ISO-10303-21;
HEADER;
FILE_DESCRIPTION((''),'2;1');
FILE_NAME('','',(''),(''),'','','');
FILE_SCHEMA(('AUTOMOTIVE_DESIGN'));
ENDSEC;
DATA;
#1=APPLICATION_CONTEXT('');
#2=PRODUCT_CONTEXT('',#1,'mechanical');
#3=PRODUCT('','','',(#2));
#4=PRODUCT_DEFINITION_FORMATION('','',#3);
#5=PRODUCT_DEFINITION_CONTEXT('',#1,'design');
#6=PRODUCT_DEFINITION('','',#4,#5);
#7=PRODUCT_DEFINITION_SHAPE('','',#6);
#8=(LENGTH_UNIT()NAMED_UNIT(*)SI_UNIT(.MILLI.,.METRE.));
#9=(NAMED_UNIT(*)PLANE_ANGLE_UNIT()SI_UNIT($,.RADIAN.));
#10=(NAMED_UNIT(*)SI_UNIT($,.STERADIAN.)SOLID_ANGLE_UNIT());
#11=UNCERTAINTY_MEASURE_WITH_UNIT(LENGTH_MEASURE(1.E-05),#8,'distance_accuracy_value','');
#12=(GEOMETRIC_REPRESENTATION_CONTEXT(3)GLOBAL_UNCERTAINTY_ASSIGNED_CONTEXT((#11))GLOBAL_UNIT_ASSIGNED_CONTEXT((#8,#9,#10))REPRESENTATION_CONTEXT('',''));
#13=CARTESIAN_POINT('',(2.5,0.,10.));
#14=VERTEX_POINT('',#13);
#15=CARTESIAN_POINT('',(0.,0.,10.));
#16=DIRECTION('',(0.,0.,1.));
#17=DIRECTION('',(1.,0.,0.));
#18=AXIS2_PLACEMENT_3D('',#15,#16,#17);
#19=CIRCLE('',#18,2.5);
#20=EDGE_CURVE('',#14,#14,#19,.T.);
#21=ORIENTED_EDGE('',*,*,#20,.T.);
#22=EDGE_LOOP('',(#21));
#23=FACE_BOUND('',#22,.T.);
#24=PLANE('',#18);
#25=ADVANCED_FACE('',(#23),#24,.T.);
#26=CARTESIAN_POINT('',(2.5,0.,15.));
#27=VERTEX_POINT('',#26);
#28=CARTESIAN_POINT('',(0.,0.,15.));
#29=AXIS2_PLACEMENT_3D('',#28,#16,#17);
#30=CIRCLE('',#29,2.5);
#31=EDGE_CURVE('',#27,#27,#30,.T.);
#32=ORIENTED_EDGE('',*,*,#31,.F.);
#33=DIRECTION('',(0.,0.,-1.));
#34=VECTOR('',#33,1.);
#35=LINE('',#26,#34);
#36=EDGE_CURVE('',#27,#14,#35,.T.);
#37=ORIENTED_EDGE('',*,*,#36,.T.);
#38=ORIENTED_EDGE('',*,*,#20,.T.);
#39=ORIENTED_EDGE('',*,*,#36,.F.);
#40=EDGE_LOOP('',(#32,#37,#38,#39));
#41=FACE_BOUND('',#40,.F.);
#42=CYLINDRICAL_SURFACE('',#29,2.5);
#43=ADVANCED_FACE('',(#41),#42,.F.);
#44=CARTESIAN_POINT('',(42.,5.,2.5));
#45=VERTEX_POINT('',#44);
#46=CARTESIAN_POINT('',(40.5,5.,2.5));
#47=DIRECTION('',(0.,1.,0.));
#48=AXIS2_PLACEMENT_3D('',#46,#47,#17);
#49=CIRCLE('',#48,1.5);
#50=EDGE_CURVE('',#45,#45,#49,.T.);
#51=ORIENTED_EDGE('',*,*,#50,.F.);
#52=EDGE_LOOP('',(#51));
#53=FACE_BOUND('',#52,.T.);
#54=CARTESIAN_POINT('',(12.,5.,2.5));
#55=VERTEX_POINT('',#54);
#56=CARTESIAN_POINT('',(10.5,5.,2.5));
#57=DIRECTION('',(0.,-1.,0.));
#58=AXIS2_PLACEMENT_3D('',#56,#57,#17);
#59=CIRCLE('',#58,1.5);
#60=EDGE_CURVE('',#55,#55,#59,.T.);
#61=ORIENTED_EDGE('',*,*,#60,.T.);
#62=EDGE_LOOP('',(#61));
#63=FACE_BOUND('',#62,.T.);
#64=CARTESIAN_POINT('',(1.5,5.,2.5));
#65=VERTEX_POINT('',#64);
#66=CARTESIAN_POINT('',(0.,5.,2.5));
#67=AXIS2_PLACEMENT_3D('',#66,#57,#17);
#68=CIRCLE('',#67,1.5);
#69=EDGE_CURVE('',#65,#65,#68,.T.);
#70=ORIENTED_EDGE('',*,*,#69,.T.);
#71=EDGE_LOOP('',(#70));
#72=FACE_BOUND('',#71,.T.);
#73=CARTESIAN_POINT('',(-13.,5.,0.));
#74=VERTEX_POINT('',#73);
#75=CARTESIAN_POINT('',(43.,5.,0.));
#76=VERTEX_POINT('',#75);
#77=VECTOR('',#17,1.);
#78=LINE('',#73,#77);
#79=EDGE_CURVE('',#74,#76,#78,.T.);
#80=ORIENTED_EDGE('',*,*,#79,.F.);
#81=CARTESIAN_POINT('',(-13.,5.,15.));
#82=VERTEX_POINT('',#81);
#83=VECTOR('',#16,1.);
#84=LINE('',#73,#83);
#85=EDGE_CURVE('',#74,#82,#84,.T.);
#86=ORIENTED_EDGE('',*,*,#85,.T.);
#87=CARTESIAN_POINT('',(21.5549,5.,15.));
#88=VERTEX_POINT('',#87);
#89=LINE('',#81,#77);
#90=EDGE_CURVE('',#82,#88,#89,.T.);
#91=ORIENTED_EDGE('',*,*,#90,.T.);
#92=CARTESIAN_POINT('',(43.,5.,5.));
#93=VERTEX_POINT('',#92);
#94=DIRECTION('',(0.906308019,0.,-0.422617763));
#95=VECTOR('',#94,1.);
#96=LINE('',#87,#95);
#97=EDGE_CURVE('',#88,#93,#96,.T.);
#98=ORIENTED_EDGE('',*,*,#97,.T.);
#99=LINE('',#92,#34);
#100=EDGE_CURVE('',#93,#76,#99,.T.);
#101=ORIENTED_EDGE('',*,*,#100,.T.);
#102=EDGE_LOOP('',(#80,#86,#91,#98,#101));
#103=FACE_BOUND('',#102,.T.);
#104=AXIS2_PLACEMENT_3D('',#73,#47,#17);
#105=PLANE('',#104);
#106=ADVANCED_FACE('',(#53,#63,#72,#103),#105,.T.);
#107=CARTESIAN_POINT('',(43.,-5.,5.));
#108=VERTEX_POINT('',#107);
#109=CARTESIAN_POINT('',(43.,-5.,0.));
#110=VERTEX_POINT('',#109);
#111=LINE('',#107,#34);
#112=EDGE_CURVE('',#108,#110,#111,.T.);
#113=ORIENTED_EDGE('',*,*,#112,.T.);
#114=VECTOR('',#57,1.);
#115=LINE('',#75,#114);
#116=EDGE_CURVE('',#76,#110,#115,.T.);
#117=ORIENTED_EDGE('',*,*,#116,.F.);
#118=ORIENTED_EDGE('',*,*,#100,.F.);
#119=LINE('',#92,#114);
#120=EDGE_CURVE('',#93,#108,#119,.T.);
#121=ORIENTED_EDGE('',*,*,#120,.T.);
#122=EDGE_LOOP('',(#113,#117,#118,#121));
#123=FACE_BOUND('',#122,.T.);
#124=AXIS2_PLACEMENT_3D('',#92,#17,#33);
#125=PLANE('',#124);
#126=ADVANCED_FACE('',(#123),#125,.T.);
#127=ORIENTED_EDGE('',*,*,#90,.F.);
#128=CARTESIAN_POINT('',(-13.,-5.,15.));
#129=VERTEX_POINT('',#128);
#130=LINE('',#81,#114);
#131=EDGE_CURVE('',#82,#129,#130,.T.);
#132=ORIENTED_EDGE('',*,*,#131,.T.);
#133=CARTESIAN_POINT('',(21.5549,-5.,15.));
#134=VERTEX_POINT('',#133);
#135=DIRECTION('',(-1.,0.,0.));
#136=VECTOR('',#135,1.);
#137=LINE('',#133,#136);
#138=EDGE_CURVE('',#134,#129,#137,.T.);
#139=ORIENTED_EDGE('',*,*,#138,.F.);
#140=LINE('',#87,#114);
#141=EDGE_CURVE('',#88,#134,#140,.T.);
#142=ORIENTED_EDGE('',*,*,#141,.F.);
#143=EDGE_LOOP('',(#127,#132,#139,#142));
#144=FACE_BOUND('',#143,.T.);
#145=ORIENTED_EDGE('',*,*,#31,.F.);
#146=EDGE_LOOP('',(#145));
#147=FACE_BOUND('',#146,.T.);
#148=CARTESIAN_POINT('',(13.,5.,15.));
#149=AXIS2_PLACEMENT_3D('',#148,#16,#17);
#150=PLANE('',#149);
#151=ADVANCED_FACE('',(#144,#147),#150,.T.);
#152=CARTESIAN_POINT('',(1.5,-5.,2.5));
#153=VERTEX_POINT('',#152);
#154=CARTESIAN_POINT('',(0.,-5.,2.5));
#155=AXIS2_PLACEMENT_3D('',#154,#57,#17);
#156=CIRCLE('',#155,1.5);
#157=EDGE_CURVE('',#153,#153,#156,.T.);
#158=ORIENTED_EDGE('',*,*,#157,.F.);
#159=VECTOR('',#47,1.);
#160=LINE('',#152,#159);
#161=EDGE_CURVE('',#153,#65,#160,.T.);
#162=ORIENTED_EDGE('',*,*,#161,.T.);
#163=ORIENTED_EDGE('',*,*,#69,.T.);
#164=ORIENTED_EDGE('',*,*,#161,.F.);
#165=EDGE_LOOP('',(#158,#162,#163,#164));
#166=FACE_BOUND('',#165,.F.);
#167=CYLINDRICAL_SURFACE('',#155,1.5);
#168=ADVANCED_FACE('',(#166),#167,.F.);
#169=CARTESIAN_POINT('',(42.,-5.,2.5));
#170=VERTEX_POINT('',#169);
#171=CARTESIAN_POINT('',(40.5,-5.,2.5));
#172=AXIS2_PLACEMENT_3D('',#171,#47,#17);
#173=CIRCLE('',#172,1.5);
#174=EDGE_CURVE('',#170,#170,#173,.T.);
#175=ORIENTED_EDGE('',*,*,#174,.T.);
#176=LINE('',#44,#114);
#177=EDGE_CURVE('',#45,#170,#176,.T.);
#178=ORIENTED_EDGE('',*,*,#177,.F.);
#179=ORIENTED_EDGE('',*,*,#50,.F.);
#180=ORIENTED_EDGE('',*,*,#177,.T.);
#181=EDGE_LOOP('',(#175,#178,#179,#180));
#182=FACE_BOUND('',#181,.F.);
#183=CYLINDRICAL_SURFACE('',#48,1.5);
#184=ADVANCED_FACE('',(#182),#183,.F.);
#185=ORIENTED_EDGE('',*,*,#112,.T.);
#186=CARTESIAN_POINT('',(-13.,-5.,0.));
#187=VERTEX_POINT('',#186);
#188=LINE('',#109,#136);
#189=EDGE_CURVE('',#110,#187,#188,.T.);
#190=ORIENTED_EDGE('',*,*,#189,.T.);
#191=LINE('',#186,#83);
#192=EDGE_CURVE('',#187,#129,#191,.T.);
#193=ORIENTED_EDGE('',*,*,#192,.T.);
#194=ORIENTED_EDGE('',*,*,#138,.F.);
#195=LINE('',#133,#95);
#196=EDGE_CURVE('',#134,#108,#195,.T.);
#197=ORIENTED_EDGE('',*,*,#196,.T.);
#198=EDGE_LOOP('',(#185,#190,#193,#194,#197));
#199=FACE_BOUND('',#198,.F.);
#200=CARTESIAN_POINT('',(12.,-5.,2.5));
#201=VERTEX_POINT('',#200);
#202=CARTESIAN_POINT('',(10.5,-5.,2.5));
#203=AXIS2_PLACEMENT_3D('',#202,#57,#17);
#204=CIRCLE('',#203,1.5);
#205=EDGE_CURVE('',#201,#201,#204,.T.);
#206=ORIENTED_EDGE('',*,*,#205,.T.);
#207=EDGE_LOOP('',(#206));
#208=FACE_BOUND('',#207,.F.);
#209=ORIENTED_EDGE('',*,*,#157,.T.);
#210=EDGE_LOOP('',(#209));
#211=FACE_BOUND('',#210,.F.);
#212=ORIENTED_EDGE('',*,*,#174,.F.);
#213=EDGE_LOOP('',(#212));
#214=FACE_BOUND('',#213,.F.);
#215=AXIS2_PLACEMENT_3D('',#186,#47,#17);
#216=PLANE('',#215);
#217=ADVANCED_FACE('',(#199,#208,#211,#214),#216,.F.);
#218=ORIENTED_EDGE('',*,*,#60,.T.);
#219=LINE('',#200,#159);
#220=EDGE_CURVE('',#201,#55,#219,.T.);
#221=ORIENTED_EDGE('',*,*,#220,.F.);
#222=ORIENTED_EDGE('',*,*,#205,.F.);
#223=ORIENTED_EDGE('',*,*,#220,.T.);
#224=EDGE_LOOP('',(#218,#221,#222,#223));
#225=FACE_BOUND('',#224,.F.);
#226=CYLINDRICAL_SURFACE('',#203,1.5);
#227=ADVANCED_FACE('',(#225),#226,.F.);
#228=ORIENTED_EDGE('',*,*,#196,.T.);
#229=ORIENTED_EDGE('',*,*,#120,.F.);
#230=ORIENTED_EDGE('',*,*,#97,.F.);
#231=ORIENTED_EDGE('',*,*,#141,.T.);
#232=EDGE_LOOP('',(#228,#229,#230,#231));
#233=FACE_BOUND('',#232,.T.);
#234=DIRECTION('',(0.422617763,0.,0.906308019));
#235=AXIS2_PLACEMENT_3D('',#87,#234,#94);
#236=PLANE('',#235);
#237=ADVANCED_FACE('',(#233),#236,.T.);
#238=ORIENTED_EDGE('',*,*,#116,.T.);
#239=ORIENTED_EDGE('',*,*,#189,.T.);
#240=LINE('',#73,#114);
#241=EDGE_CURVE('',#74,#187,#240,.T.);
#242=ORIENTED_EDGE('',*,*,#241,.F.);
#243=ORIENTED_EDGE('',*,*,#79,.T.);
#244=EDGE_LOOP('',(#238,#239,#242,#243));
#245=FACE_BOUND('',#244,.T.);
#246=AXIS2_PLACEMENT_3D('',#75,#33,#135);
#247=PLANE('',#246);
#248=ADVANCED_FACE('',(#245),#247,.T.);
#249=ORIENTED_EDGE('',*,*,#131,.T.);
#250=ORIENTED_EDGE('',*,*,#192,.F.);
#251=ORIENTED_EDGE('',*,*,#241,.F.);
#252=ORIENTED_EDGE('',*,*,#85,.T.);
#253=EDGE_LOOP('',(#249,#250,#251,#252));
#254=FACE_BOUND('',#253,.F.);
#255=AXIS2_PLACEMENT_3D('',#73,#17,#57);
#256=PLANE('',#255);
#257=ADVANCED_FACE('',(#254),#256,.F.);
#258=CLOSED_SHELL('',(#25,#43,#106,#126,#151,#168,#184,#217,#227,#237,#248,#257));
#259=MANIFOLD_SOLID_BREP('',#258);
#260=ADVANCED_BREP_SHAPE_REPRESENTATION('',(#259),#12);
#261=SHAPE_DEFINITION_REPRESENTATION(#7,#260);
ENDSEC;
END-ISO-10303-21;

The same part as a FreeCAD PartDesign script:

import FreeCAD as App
import Part
import Sketcher
Q = App.Units.Quantity

doc = App.newDocument("Part")
body = doc.addObject("PartDesign::Body", "Body")

# Sketch on XY plane
sketch1 = body.newObject("Sketcher::SketchObject", "Sketch")
sketch1.AttachmentSupport = (doc.getObject("XY_Plane"), [""])
sketch1.MapMode = "FlatFace"
sketch1.addGeometry(Part.LineSegment(App.Vector(-13, 5, 0), App.Vector(-13, -5, 0)), False)
sketch1.addGeometry(Part.LineSegment(App.Vector(-13, -5, 0), App.Vector(13, -5, 0)), False)
sketch1.addGeometry(Part.LineSegment(App.Vector(13, -5, 0), App.Vector(13, 5, 0)), False)
sketch1.addGeometry(Part.LineSegment(App.Vector(13, 5, 0), App.Vector(-13, 5, 0)), False)
sketch1.addConstraint(Sketcher.Constraint("Coincident", 0, 2, 1, 1))
sketch1.addConstraint(Sketcher.Constraint("Coincident", 1, 2, 2, 1))
sketch1.addConstraint(Sketcher.Constraint("Coincident", 2, 2, 3, 1))
sketch1.addConstraint(Sketcher.Constraint("Coincident", 3, 2, 0, 1))
sketch1.addConstraint(Sketcher.Constraint("Vertical", 0))
sketch1.addConstraint(Sketcher.Constraint("Horizontal", 1))
sketch1.addConstraint(Sketcher.Constraint("Vertical", 2))
sketch1.addConstraint(Sketcher.Constraint("Horizontal", 3))
sketch1.addConstraint(Sketcher.Constraint("Symmetric", 0, 2, 2, 2, -1, 1))
sketch1.addConstraint(Sketcher.Constraint("DistanceX", 1, 1, 1, 2, 26.0))
sketch1.addConstraint(Sketcher.Constraint("DistanceY", 0, 2, 0, 1, 10.0))
pad1 = body.newObject("PartDesign::Pad", "Pad")
pad1.Profile = sketch1
pad1.Length = 15

# Sketch on XZ plane
sketch2 = body.newObject("Sketcher::SketchObject", "Sketch001")
sketch2.AttachmentSupport = (doc.getObject("XZ_Plane"), [""])
sketch2.MapMode = "FlatFace"
sketch2.AttachmentOffset = App.Placement(App.Vector(0, 0, 5), App.Rotation())
sketch2.addGeometry(Part.Circle(App.Vector(0, 2.5, 0), App.Vector(0, 0, 1), 1.5), False)
sketch2.addGeometry(Part.Circle(App.Vector(10.5, 2.5, 0), App.Vector(0, 0, 1), 1.5), False)
sketch2.addConstraint(Sketcher.Constraint("Equal", 0, 1))
sketch2.addConstraint(Sketcher.Constraint("PointOnObject", 0, 3, -2))
sketch2.addConstraint(Sketcher.Constraint("Horizontal", 0, 3, 1, 3))
sketch2.addConstraint(Sketcher.Constraint("Diameter", 0, 3.0))
sketch2.addConstraint(Sketcher.Constraint("DistanceY", -1, 1, 0, 3, 2.5))
sketch2.addConstraint(Sketcher.Constraint("DistanceX", -1, 1, 1, 3, 10.5))
pocket1 = body.newObject("PartDesign::Pocket", "Pocket")
pocket1.Profile = sketch2
pocket1.Type = "ThroughAll"

# Sketch on XY plane
sketch3 = body.newObject("Sketcher::SketchObject", "Sketch002")
sketch3.AttachmentSupport = (doc.getObject("XY_Plane"), [""])
sketch3.MapMode = "FlatFace"
sketch3.AttachmentOffset = App.Placement(App.Vector(0, 0, 15), App.Rotation())
sketch3.addGeometry(Part.Circle(App.Vector(0, 0, 0), App.Vector(0, 0, 1), 2.5), False)
sketch3.addConstraint(Sketcher.Constraint("Coincident", 0, 3, -1, 1))
sketch3.addConstraint(Sketcher.Constraint("Diameter", 0, 5.0))
pocket2 = body.newObject("PartDesign::Pocket", "Pocket001")
pocket2.Profile = sketch3
pocket2.Length = 5

# Sketch on XZ plane
sketch4 = body.newObject("Sketcher::SketchObject", "Sketch003")
sketch4.AttachmentSupport = (doc.getObject("XZ_Plane"), [""])
sketch4.MapMode = "FlatFace"
sketch4.AttachmentOffset = App.Placement(App.Vector(0, 0, -5), App.Rotation())
sketch4.addGeometry(Part.LineSegment(App.Vector(13, 0, 0), App.Vector(13, 15, 0)), False)
sketch4.addGeometry(Part.LineSegment(App.Vector(13, 15, 0), App.Vector(21.6, 15, 0)), False)
sketch4.addGeometry(Part.LineSegment(App.Vector(21.6, 15, 0), App.Vector(43, 5, 0)), False)
sketch4.addGeometry(Part.LineSegment(App.Vector(43, 5, 0), App.Vector(43, 0, 0)), False)
sketch4.addGeometry(Part.LineSegment(App.Vector(43, 0, 0), App.Vector(13, 0, 0)), False)
sketch4.addGeometry(Part.Circle(App.Vector(40.5, 2.5, 0), App.Vector(0, 0, 1), 1.5), False)
sketch4.addConstraint(Sketcher.Constraint("Coincident", 0, 2, 1, 1))
sketch4.addConstraint(Sketcher.Constraint("Coincident", 1, 2, 2, 1))
sketch4.addConstraint(Sketcher.Constraint("Coincident", 2, 2, 3, 1))
sketch4.addConstraint(Sketcher.Constraint("Coincident", 3, 2, 4, 1))
sketch4.addConstraint(Sketcher.Constraint("Coincident", 4, 2, 0, 1))
sketch4.addConstraint(Sketcher.Constraint("Vertical", 0))
sketch4.addConstraint(Sketcher.Constraint("Horizontal", 1))
sketch4.addConstraint(Sketcher.Constraint("Vertical", 3))
sketch4.addConstraint(Sketcher.Constraint("Horizontal", 4))
sketch4.addConstraint(Sketcher.Constraint("PointOnObject", 3, 2, -1))
sketch4.addConstraint(Sketcher.Constraint("Diameter", 5, 3.0))
sketch4.addConstraint(Sketcher.Constraint("DistanceX", 4, 2, 4, 1, 30.0))
sketch4.addConstraint(Sketcher.Constraint("DistanceY", 3, 2, 3, 1, 5.0))
sketch4.addConstraint(Sketcher.Constraint("DistanceY", -1, 1, 5, 3, 2.5))
sketch4.addConstraint(Sketcher.Constraint("DistanceX", 5, 3, 2, 2, 2.5))
sketch4.addConstraint(Sketcher.Constraint("DistanceY", 0, 1, 0, 2, 15.0))
sketch4.addConstraint(Sketcher.Constraint("Angle", 2, Q("-25 deg")))
sketch4.addConstraint(Sketcher.Constraint("DistanceX", -1, 1, 0, 2, 13.0))
pad2 = body.newObject("PartDesign::Pad", "Pad001")
pad2.Profile = sketch4
pad2.Length = 10

doc.recompute()
